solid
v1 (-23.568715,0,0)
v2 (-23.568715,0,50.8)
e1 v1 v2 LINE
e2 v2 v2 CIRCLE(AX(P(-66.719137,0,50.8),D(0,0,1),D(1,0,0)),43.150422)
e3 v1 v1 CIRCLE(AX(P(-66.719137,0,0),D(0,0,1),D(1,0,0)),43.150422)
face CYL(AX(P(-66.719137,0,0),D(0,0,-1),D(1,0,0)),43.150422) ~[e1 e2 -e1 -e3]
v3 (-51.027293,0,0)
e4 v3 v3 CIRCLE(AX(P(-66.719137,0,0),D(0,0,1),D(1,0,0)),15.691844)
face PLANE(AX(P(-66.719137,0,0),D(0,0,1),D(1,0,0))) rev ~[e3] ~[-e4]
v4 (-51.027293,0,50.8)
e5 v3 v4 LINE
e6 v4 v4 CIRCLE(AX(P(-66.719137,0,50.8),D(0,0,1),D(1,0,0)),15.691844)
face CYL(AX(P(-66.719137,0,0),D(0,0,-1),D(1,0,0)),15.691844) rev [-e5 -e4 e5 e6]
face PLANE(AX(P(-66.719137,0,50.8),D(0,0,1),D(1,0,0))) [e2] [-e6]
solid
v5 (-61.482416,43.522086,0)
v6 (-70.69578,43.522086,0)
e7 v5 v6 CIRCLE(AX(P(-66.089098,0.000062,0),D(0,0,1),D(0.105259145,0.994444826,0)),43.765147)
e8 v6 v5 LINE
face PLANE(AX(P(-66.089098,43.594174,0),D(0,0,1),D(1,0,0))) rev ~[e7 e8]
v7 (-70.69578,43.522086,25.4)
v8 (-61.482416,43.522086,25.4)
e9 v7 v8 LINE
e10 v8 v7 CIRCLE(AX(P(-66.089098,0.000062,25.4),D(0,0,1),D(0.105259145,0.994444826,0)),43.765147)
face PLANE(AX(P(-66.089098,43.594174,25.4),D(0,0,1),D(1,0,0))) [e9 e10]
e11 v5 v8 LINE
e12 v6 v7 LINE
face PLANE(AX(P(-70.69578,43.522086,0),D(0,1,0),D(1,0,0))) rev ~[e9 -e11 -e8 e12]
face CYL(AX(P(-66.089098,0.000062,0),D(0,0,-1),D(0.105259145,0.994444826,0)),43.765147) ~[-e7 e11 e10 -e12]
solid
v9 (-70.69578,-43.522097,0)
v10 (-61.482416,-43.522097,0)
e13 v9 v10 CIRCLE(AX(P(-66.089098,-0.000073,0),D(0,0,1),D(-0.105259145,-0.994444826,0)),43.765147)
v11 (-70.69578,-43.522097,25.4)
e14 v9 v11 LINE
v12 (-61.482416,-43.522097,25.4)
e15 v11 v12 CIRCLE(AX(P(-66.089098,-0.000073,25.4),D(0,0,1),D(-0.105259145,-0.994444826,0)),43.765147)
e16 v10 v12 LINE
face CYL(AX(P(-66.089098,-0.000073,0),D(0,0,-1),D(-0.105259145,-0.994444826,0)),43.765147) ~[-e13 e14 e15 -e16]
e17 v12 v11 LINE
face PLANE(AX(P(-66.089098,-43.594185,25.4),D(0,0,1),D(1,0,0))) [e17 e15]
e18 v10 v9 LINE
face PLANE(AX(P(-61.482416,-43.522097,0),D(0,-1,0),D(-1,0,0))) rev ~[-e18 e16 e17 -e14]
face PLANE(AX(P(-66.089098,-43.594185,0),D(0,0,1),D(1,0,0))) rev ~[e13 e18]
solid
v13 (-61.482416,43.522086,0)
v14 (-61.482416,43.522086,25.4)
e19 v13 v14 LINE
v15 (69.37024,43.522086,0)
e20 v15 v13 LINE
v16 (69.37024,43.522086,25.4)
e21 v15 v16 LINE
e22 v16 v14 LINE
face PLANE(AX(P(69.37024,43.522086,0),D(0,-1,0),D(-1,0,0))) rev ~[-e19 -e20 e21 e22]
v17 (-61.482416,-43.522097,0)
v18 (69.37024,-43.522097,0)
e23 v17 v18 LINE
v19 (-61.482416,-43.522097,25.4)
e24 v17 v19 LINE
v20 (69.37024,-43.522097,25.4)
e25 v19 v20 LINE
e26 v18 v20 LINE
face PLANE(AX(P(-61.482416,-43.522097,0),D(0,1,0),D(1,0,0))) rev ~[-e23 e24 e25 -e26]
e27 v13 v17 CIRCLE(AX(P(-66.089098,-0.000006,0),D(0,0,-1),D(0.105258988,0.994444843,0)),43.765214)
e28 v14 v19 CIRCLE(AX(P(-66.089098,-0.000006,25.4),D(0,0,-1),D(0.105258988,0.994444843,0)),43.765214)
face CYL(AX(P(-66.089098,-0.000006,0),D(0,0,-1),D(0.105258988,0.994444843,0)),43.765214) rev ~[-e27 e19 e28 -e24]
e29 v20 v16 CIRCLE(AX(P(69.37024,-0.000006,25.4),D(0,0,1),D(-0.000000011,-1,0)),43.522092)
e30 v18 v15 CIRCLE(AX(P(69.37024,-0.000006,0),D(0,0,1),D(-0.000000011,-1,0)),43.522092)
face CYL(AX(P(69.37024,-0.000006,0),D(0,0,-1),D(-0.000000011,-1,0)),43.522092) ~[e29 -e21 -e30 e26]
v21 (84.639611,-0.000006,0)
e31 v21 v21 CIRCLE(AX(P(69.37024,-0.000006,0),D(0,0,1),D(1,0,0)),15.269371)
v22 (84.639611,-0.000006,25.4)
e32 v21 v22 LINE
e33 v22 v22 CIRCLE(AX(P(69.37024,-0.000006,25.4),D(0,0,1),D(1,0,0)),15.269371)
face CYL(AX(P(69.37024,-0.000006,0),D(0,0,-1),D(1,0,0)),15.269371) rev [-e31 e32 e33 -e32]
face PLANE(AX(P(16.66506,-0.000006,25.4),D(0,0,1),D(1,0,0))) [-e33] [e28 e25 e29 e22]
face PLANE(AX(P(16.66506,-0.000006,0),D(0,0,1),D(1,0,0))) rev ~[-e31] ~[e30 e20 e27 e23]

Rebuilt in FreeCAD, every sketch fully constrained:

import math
import FreeCAD as App
import Part
import Sketcher
Q = App.Units.Quantity

doc = App.newDocument("Part")
body = doc.addObject("PartDesign::Body", "Body")

# Sketch on XY plane
sketch1 = body.newObject("Sketcher::SketchObject", "Sketch")
sketch1.AttachmentSupport = (doc.getObject("XY_Plane"), [""])
sketch1.MapMode = "FlatFace"
sketch1.addGeometry(Part.Circle(App.Vector(-66.719137, 0, 0), App.Vector(0, 0, 1), 43.150422), False)
sketch1.addGeometry(Part.Circle(App.Vector(-66.719137, 0, 0), App.Vector(0, 0, 1), 15.691844), False)
sketch1.addConstraint(Sketcher.Constraint("Coincident", 1, 3, 0, 3))
sketch1.addConstraint(Sketcher.Constraint("PointOnObject", 0, 3, -1))
sketch1.addConstraint(Sketcher.Constraint("Diameter", 0, 86.300844))
sketch1.addConstraint(Sketcher.Constraint("Diameter", 1, 31.383688))
sketch1.addConstraint(Sketcher.Constraint("DistanceX", 0, 3, -1, 1, 66.719137))
pad1 = body.newObject("PartDesign::Pad", "Pad")
pad1.Profile = sketch1
pad1.Length = Q("2 in")
body2 = doc.addObject("PartDesign::Body", "Body001")
body2.AllowCompound = True

# Sketch on XY plane
sketch2 = body2.newObject("Sketcher::SketchObject", "Sketch001")
sketch2.AttachmentSupport = (doc.getObject("XY_Plane001"), [""])
sketch2.MapMode = "FlatFace"
sketch2.addGeometry(Part.ArcOfCircle(Part.Circle(App.Vector(-66.089098, 0.000062, 0), App.Vector(0, 0, 1), 43.765147), math.radians(83.957903), math.radians(96.042097)), False)
sketch2.addGeometry(Part.LineSegment(App.Vector(-70.69578, 43.522086, 0), App.Vector(-61.482416, 43.522086, 0)), False)
sketch2.addGeometry(Part.ArcOfCircle(Part.Circle(App.Vector(-66.089098, -0.000073, 0), App.Vector(0, 0, 1), 43.765147), math.radians(-96.042097), math.radians(-83.957903)), False)
sketch2.addGeometry(Part.LineSegment(App.Vector(-61.482416, -43.522097, 0), App.Vector(-70.69578, -43.522097, 0)), False)
sketch2.addGeometry(Part.LineSegment(App.Vector(69.37024, 43.522086, 0), App.Vector(-61.482416, 43.522086, 0)), False)
sketch2.addGeometry(Part.ArcOfCircle(Part.Circle(App.Vector(-66.089098, -0.000005, 0), App.Vector(0, 0, 1), 43.765214), math.radians(-83.957912), math.radians(83.957912)), False)
sketch2.addGeometry(Part.LineSegment(App.Vector(-61.482416, -43.522097, 0), App.Vector(69.37024, -43.522097, 0)), False)
sketch2.addGeometry(Part.ArcOfCircle(Part.Circle(App.Vector(69.37024, -0.000005, 0), App.Vector(0, 0, 1), 43.522092), math.radians(-90.000001), math.radians(90.000001)), False)
sketch2.addGeometry(Part.Circle(App.Vector(69.37024, -0.000006, 0), App.Vector(0, 0, 1), 15.269371), False)
sketch2.addConstraint(Sketcher.Constraint("Coincident", 0, 1, 1, 2))
sketch2.addConstraint(Sketcher.Constraint("Coincident", 1, 1, 0, 2))
sketch2.addConstraint(Sketcher.Constraint("Coincident", 2, 1, 3, 2))
sketch2.addConstraint(Sketcher.Constraint("Coincident", 3, 1, 2, 2))
sketch2.addConstraint(Sketcher.Constraint("Coincident", 4, 2, 5, 2))
sketch2.addConstraint(Sketcher.Constraint("Coincident", 5, 1, 6, 1))
sketch2.addConstraint(Sketcher.Constraint("Tangent", 6, 2, 7, 1))
sketch2.addConstraint(Sketcher.Constraint("Tangent", 7, 2, 4, 1))
sketch2.addConstraint(Sketcher.Constraint("Horizontal", 1))
sketch2.addConstraint(Sketcher.Constraint("Horizontal", 3))
sketch2.addConstraint(Sketcher.Constraint("Horizontal", 4))
sketch2.addConstraint(Sketcher.Constraint("Horizontal", 6))
sketch2.addConstraint(Sketcher.Constraint("Coincident", 8, 3, 7, 3))
sketch2.addConstraint(Sketcher.Constraint("Coincident", 4, 2, 0, 1))
sketch2.addConstraint(Sketcher.Constraint("Coincident", 5, 1, 3, 1))
sketch2.addConstraint(Sketcher.Constraint("Equal", 0, 2))
sketch2.addConstraint(Sketcher.Constraint("Horizontal", 5, 3, 7, 3))
sketch2.addConstraint(Sketcher.Constraint("Vertical", 0, 3, 2, 3))
sketch2.addConstraint(Sketcher.Constraint("Vertical", 2, 3, 5, 3))
sketch2.addConstraint(Sketcher.Constraint("Diameter", 8, 30.538742))
sketch2.addConstraint(Sketcher.Constraint("Radius", 7, 43.522092))
sketch2.addConstraint(Sketcher.Constraint("Radius", 0, 43.765147))
sketch2.addConstraint(Sketcher.Constraint("Radius", 5, 43.765214))
sketch2.addConstraint(Sketcher.Constraint("DistanceX", 0, 3, -1, 1, 66.089098))
sketch2.addConstraint(Sketcher.Constraint("DistanceX", 4, 2, 4, 1, 130.852656))
sketch2.addConstraint(Sketcher.Constraint("DistanceY", -1, 1, 0, 1, 43.522086))
pad2 = body2.newObject("PartDesign::Pad", "Pad001")
pad2.Profile = sketch2
pad2.Length = Q("1 in")

doc.recompute()
